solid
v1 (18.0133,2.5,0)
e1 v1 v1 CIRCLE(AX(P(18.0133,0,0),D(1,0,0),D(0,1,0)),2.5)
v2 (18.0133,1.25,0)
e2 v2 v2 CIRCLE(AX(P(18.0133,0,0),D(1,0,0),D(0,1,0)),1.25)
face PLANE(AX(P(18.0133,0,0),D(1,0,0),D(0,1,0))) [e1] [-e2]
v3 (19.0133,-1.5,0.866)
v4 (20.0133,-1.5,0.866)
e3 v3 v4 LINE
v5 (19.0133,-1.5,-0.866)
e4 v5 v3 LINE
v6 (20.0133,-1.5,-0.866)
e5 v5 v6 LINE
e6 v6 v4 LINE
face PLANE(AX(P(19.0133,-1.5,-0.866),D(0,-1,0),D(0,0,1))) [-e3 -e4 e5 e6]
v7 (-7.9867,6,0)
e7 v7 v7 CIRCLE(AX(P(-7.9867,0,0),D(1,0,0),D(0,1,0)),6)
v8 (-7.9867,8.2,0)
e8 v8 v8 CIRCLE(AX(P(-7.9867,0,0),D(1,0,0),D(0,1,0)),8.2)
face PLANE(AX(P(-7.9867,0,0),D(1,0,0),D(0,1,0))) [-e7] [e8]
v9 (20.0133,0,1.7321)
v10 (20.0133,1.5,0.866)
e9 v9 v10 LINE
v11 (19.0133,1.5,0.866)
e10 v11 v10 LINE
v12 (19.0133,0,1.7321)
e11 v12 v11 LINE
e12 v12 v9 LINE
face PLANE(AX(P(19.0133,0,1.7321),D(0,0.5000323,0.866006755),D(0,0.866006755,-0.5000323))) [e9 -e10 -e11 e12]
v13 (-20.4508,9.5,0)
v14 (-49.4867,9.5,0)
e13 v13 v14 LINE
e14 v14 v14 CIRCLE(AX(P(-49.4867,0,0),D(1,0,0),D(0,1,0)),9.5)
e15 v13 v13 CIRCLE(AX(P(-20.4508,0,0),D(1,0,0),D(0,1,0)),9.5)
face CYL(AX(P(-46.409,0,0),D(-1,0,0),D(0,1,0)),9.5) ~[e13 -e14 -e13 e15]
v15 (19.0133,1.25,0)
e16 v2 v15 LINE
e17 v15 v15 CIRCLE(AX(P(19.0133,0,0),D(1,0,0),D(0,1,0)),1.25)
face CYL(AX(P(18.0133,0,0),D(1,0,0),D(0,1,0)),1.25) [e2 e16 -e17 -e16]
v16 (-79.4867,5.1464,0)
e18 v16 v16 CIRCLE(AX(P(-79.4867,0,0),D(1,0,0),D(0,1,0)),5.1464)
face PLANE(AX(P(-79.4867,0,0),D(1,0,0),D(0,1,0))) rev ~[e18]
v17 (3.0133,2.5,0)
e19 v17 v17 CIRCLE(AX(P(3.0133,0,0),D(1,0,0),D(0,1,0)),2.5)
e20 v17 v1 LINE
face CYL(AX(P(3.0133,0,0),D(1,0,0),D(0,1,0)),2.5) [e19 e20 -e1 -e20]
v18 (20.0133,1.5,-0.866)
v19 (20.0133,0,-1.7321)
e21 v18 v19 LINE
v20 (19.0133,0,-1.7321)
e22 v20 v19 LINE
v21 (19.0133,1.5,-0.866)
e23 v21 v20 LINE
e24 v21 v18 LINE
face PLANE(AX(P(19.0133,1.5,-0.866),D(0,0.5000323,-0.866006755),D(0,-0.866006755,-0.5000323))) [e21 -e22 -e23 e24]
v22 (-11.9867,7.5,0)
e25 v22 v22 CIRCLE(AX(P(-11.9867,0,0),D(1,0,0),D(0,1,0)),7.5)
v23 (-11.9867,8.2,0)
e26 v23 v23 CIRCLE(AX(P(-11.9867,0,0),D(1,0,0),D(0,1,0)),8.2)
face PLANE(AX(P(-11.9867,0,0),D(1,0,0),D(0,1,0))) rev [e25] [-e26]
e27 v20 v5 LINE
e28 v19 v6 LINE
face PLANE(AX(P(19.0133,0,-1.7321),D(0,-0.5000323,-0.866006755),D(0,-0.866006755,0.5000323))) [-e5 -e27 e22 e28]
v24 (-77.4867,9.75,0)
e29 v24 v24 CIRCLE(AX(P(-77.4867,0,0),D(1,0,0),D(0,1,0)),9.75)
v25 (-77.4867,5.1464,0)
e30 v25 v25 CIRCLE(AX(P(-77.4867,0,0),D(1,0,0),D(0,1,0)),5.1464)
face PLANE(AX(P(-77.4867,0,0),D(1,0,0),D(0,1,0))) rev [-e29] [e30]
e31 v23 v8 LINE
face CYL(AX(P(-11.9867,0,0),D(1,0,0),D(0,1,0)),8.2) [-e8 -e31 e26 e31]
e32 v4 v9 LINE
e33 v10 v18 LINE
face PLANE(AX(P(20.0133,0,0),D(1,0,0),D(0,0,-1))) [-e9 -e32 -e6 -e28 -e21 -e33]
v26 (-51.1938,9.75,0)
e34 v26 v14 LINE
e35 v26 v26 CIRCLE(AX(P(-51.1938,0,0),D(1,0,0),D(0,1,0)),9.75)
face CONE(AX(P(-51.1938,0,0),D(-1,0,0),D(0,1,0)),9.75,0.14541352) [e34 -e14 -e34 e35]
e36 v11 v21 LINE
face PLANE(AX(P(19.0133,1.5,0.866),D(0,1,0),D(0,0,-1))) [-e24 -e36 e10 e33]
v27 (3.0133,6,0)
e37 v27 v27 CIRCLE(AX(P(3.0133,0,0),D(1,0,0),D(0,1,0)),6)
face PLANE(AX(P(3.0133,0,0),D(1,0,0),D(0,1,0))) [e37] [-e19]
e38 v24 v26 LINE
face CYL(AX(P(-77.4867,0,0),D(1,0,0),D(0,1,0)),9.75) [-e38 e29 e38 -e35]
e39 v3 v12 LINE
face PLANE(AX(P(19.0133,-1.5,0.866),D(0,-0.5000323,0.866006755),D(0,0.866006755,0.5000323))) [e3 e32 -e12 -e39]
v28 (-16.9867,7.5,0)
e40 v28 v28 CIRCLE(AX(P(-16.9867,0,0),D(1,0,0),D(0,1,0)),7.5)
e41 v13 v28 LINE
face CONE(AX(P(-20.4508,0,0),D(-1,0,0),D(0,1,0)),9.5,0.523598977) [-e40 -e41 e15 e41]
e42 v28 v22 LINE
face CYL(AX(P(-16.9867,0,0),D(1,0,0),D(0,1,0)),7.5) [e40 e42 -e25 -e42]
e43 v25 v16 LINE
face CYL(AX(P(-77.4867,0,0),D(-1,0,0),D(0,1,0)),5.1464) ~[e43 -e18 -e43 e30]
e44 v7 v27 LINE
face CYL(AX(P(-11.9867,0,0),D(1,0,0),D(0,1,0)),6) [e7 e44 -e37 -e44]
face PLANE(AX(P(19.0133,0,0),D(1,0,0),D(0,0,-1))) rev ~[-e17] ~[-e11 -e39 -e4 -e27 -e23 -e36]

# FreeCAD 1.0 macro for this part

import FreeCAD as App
import Part
import Sketcher
Q = App.Units.Quantity


def add_polygon(sketch, points):
    """Adds a closed chain of lines whose ends are joined by coincident constraints."""
    first, n = sketch.GeometryCount, len(points)
    for a, b in zip(points, points[1:] + points[:1]):
        sketch.addGeometry(Part.LineSegment(App.Vector(*a, 0), App.Vector(*b, 0)), False)
    for i in range(n):
        sketch.addConstraint(Sketcher.Constraint("Coincident", first + i, 2, first + (i + 1) % n, 1))

doc = App.newDocument("Part")
body = doc.addObject("PartDesign::Body", "Body")

# Sketch on XY plane
sketch1 = body.newObject("Sketcher::SketchObject", "Sketch")
sketch1.AttachmentSupport = (doc.getObject("XY_Plane"), [""])
sketch1.MapMode = "FlatFace"
add_polygon(sketch1, [(-79.4867, 5.1464), (-79.4867, 0), (19.0133, 0), (19.0133, 1.25), (18.0133, 1.25), (18.0133, 2.5), (3.0133, 2.5), (3.0133, 6), (-7.9867, 6), (-7.9867, 8.2), (-11.9867, 8.2), (-11.9867, 7.5), (-16.9867, 7.5), (-20.4508, 9.5), (-49.4867, 9.5), (-51.1938, 9.75), (-77.4867, 9.75), (-77.4867, 5.1464)])  # lines 0-17
sketch1.addConstraint(Sketcher.Constraint("Vertical", 0))
sketch1.addConstraint(Sketcher.Constraint("Horizontal", 1))
sketch1.addConstraint(Sketcher.Constraint("Vertical", 2))
sketch1.addConstraint(Sketcher.Constraint("Horizontal", 3))
sketch1.addConstraint(Sketcher.Constraint("Vertical", 4))
sketch1.addConstraint(Sketcher.Constraint("Horizontal", 5))
sketch1.addConstraint(Sketcher.Constraint("Vertical", 6))
sketch1.addConstraint(Sketcher.Constraint("Horizontal", 7))
sketch1.addConstraint(Sketcher.Constraint("Vertical", 8))
sketch1.addConstraint(Sketcher.Constraint("Horizontal", 9))
sketch1.addConstraint(Sketcher.Constraint("Vertical", 10))
sketch1.addConstraint(Sketcher.Constraint("Horizontal", 11))
sketch1.addConstraint(Sketcher.Constraint("Horizontal", 13))
sketch1.addConstraint(Sketcher.Constraint("Horizontal", 15))
sketch1.addConstraint(Sketcher.Constraint("Vertical", 16))
sketch1.addConstraint(Sketcher.Constraint("Horizontal", 17))
sketch1.addConstraint(Sketcher.Constraint("PointOnObject", 0, 2, -1))
sketch1.addConstraint(Sketcher.Constraint("Equal", 2, 4))
sketch1.addConstraint(Sketcher.Constraint("DistanceX", 3, 2, 3, 1, Q("1 mm")))
sketch1.addConstraint(Sketcher.Constraint("DistanceX", 5, 2, 5, 1, Q("15 mm")))
sketch1.addConstraint(Sketcher.Constraint("DistanceX", 9, 2, 9, 1, Q("4 mm")))
sketch1.addConstraint(Sketcher.Constraint("DistanceX", 11, 2, 11, 1, Q("5 mm")))
sketch1.addConstraint(Sketcher.Constraint("DistanceX", 17, 2, 17, 1, Q("2 mm")))
sketch1.addConstraint(Sketcher.Constraint("Angle", 12, Q("150 deg")))
sketch1.addConstraint(Sketcher.Constraint("Distance", 12, Q("4 mm")))
sketch1.addConstraint(Sketcher.Constraint("DistanceY", 10, 2, 10, 1, Q("0.7 mm")))
sketch1.addConstraint(Sketcher.Constraint("DistanceX", 9, 2, 6, 2, Q("15 mm")))
sketch1.addConstraint(Sketcher.Constraint("DistanceY", 5, 2, 10, 2, Q("5 mm")))
sketch1.addConstraint(Sketcher.Constraint("DistanceX", 0, 2, 13, 2, Q("30 mm")))
sketch1.addConstraint(Sketcher.Constraint("DistanceX", 1, 1, 1, 2, Q("98.5 mm")))
sketch1.addConstraint(Sketcher.Constraint("DistanceY", 6, 1, 6, 2, Q("3.5 mm")))
sketch1.addConstraint(Sketcher.Constraint("DistanceY", -1, 1, 6, 2, Q("6 mm")))
sketch1.addConstraint(Sketcher.Constraint("DistanceX", 15, 2, 15, 1, Q("26.293 mm")))
sketch1.addConstraint(Sketcher.Constraint("DistanceY", -1, 1, 14, 2, Q("9.75 mm")))
sketch1.addConstraint(Sketcher.Constraint("DistanceY", 0, 2, 0, 1, Q("5.1464 mm")))
sketch1.addConstraint(Sketcher.Constraint("DistanceX", 0, 2, -1, 1, Q("79.4867 mm")))
revolution = body.newObject("PartDesign::Revolution", "Revolution")
revolution.Profile = sketch1
revolution.ReferenceAxis = (sketch1, ["H_Axis"])
revolution.Angle = 360

# Sketch on YZ plane
sketch2 = body.newObject("Sketcher::SketchObject", "Sketch001")
sketch2.AttachmentSupport = (doc.getObject("YZ_Plane"), [""])
sketch2.MapMode = "FlatFace"
sketch2.AttachmentOffset = App.Placement(App.Vector(0, 0, 19.0133), App.Rotation())
add_polygon(sketch2, [(-1.5, -0.866), (0, -1.7321), (1.5, -0.866), (1.5, 0.866), (0, 1.7321), (-1.5, 0.866)])  # lines 0-5
sketch2.addConstraint(Sketcher.Constraint("Vertical", 2))
sketch2.addConstraint(Sketcher.Constraint("Vertical", 5))
sketch2.addConstraint(Sketcher.Constraint("Symmetric", 0, 2, 3, 2, -1, 1))
sketch2.addConstraint(Sketcher.Constraint("Symmetric", 1, 2, 4, 2, -1, 1))
sketch2.addConstraint(Sketcher.Constraint("PointOnObject", 0, 2, -2))
sketch2.addConstraint(Sketcher.Constraint("Parallel", 0, 3))
sketch2.addConstraint(Sketcher.Constraint("Horizontal", 2, 2, 4, 2))
sketch2.addConstraint(Sketcher.Constraint("DistanceX", 4, 2, 2, 2, Q("3 mm")))
sketch2.addConstraint(Sketcher.Constraint("DistanceY", 2, 1, 2, 2, Q("1.732 mm")))
sketch2.addConstraint(Sketcher.Constraint("Distance", 0, Q("1.732 mm")))
pad1 = body.newObject("PartDesign::Pad", "Pad")
pad1.Profile = sketch2
pad1.Length = 1

doc.recompute()
